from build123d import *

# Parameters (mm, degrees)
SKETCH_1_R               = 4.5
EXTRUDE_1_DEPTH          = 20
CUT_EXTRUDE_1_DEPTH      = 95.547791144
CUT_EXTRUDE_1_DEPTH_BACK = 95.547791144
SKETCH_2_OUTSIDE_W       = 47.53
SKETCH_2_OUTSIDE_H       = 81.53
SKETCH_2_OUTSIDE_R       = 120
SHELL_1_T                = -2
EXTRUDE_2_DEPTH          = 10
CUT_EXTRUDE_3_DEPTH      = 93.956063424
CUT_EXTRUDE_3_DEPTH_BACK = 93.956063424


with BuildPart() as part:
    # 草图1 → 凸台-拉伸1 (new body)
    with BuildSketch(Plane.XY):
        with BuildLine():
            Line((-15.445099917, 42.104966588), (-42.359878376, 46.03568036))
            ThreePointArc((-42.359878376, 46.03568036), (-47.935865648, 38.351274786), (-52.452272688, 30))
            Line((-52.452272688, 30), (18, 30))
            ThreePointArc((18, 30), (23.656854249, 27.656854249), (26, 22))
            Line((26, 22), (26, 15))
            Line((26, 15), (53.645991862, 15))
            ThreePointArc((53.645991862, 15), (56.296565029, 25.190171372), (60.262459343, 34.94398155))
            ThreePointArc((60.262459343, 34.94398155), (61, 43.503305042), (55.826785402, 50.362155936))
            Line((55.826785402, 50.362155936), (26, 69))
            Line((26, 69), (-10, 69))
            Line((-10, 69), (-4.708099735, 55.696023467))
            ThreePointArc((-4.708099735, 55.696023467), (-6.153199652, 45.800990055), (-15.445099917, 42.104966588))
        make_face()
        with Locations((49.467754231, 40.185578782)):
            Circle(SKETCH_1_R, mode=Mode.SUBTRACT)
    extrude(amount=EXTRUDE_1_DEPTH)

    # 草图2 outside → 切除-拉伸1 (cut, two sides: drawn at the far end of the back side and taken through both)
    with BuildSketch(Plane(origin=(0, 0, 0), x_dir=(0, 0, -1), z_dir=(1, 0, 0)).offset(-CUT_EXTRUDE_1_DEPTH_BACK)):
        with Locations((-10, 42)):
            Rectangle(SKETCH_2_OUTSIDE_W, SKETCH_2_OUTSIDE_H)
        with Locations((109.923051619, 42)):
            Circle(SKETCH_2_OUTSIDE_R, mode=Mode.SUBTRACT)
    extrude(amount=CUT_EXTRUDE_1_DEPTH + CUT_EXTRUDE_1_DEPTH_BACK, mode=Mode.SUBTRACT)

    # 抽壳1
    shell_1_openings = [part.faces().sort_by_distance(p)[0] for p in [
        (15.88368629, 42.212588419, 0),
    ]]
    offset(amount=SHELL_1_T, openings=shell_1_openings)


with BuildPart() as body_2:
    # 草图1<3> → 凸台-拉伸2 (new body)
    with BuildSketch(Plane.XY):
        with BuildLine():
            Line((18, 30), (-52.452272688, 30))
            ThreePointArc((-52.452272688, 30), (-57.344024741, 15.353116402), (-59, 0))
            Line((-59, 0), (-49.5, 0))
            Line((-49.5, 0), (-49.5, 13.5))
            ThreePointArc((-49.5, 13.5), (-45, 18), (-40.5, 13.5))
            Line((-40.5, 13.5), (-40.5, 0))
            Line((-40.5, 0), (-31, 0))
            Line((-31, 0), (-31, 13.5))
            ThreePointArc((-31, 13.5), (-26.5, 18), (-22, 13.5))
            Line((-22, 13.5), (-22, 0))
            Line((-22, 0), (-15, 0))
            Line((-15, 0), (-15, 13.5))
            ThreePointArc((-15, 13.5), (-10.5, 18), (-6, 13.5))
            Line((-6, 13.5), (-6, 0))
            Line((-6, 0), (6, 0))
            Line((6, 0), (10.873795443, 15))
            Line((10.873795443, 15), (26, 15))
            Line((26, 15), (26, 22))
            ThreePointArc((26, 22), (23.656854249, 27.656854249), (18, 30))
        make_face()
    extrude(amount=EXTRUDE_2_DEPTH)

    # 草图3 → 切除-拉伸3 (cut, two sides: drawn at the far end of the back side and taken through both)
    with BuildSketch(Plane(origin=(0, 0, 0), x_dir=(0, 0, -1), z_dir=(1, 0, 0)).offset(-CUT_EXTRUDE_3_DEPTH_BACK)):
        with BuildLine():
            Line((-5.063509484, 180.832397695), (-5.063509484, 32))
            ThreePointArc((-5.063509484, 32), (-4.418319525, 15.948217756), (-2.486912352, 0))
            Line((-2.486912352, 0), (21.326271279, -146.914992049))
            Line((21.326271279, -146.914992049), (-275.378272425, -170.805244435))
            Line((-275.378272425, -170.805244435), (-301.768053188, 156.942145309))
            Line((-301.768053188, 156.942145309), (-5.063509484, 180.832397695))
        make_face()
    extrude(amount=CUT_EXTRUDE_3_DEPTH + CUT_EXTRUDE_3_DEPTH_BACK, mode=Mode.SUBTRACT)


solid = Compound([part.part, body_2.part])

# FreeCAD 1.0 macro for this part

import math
import FreeCAD as App
import Part
import Sketcher
Q = App.Units.Quantity


def faces_at(feature, points):
    """Names of the faces that lie closest to the given points."""
    faces = feature.Shape.Faces
    near = lambda p: min(range(len(faces)), key=lambda i: faces[i].distToShape(Part.Vertex(*p))[0])
    return sorted({f"Face{near(p) + 1}" for p in points})

doc = App.newDocument("Part")
body = doc.addObject("PartDesign::Body", "Body")

# Sketch on XY plane
sketch1 = doc.addObject("Sketcher::SketchObject", "Sketch")
body.addObject(sketch1)
sketch1.AttachmentSupport = (doc.XY_Plane, [""])
sketch1.MapMode = "FlatFace"
sketch1.addGeometry(Part.LineSegment(App.Vector(-15.4, 42.1, 0), App.Vector(-42.4, 46, 0)), False)
sketch1.addGeometry(Part.ArcOfCircle(Part.Circle(App.Vector(13, 0, 0), App.Vector(0, 0, 1), 72), math.radians(140.25), math.radians(155.38)), False)
sketch1.addGeometry(Part.LineSegment(App.Vector(-52.5, 30, 0), App.Vector(18, 30, 0)), False)
sketch1.addGeometry(Part.ArcOfCircle(Part.Circle(App.Vector(18, 22, 0), App.Vector(0, 0, 1), 8), math.radians(0), math.radians(90)), False)
sketch1.addGeometry(Part.LineSegment(App.Vector(26, 22, 0), App.Vector(26, 15, 0)), False)
sketch1.addGeometry(Part.LineSegment(App.Vector(26, 15, 0), App.Vector(53.6, 15, 0)), False)
sketch1.addGeometry(Part.ArcOfCircle(Part.Circle(App.Vector(132.2, 0, 0), App.Vector(0, 0, 1), 80), math.radians(154.1), math.radians(169.19)), False)
sketch1.addGeometry(Part.ArcOfCircle(Part.Circle(App.Vector(49.5, 40.2, 0), App.Vector(0, 0, 1), 12), math.radians(-26), math.radians(58)), False)
sketch1.addGeometry(Part.LineSegment(App.Vector(55.8, 50.4, 0), App.Vector(26, 69, 0)), False)
sketch1.addGeometry(Part.LineSegment(App.Vector(26, 69, 0), App.Vector(-10, 69, 0)), False)
sketch1.addGeometry(Part.LineSegment(App.Vector(-10, 69, 0), App.Vector(-4.7, 55.7, 0)), False)
sketch1.addGeometry(Part.ArcOfCircle(Part.Circle(App.Vector(-14, 52, 0), App.Vector(0, 0, 1), 10), math.radians(-98), math.radians(22)), False)
sketch1.addGeometry(Part.Circle(App.Vector(49.5, 40.2, 0), App.Vector(0, 0, 1), 4.5), False)
sketch1.addConstraint(Sketcher.Constraint("Coincident", 0, 2, 1, 1))
sketch1.addConstraint(Sketcher.Constraint("Coincident", 1, 2, 2, 1))
sketch1.addConstraint(Sketcher.Constraint("Tangent", 2, 2, 3, 2))
sketch1.addConstraint(Sketcher.Constraint("Tangent", 3, 1, 4, 1))
sketch1.addConstraint(Sketcher.Constraint("Coincident", 4, 2, 5, 1))
sketch1.addConstraint(Sketcher.Constraint("Coincident", 5, 2, 6, 2))
sketch1.addConstraint(Sketcher.Constraint("Tangent", 6, 1, 7, 1))
sketch1.addConstraint(Sketcher.Constraint("Tangent", 7, 2, 8, 1))
sketch1.addConstraint(Sketcher.Constraint("Coincident", 8, 2, 9, 1))
sketch1.addConstraint(Sketcher.Constraint("Coincident", 9, 2, 10, 1))
sketch1.addConstraint(Sketcher.Constraint("Tangent", 10, 2, 11, 2))
sketch1.addConstraint(Sketcher.Constraint("Tangent", 11, 1, 0, 1))
sketch1.addConstraint(Sketcher.Constraint("Horizontal", 2))
sketch1.addConstraint(Sketcher.Constraint("Vertical", 4))
sketch1.addConstraint(Sketcher.Constraint("Horizontal", 5))
sketch1.addConstraint(Sketcher.Constraint("Horizontal", 9))
sketch1.addConstraint(Sketcher.Constraint("Coincident", 12, 3, 7, 3))
sketch1.addConstraint(Sketcher.Constraint("PointOnObject", 1, 3, -1))
sketch1.addConstraint(Sketcher.Constraint("PointOnObject", 6, 3, -1))
sketch1.addConstraint(Sketcher.Constraint("Vertical", 4, 2, 8, 2))
sketch1.addConstraint(Sketcher.Constraint("Diameter", 12, 9.0))
sketch1.addConstraint(Sketcher.Constraint("Radius", 1, 72.0))
sketch1.addConstraint(Sketcher.Constraint("Radius", 3, 8.0))
sketch1.addConstraint(Sketcher.Constraint("Radius", 6, 80.0))
sketch1.addConstraint(Sketcher.Constraint("Radius", 7, 12.0))
sketch1.addConstraint(Sketcher.Constraint("Radius", 11, 10.0))
sketch1.addConstraint(Sketcher.Constraint("DistanceX", 9, 2, 9, 1, 36.0))
sketch1.addConstraint(Sketcher.Constraint("DistanceY", 4, 2, 4, 1, 7.0))
sketch1.addConstraint(Sketcher.Constraint("Angle", 8, Q("148 deg")))
sketch1.addConstraint(Sketcher.Constraint("DistanceX", -1, 1, 1, 3, 13.0))
sketch1.addConstraint(Sketcher.Constraint("DistanceX", -1, 1, 3, 3, 18.0))
sketch1.addConstraint(Sketcher.Constraint("DistanceY", -1, 1, 3, 3, 22.0))
sketch1.addConstraint(Sketcher.Constraint("DistanceX", 11, 3, -1, 1, 14.0))
sketch1.addConstraint(Sketcher.Constraint("DistanceY", -1, 1, 11, 3, 52.0))
sketch1.addConstraint(Sketcher.Constraint("DistanceY", -1, 1, 8, 2, 69.0))
sketch1.addConstraint(Sketcher.Constraint("DistanceX", 11, 1, 10, 2, 10.737))
sketch1.addConstraint(Sketcher.Constraint("Distance", 8, 35.171101))
pad1 = doc.addObject("PartDesign::Pad", "Pad")
body.addObject(pad1)
pad1.Profile = sketch1
pad1.Length = 20

# Sketch on YZ plane
sketch2 = doc.addObject("Sketcher::SketchObject", "Sketch001")
body.addObject(sketch2)
sketch2.AttachmentSupport = (doc.YZ_Plane, [""])
sketch2.MapMode = "FlatFace"
sketch2.addGeometry(Part.LineSegment(App.Vector(83, 34, 0), App.Vector(1, 34, 0)), False)
sketch2.addGeometry(Part.LineSegment(App.Vector(1, 34, 0), App.Vector(1, 3, 0)), False)
sketch2.addGeometry(Part.ArcOfCircle(Part.Circle(App.Vector(42, -110, 0), App.Vector(0, 0, 1), 120), math.radians(70), math.radians(110)), False)
sketch2.addGeometry(Part.LineSegment(App.Vector(83, 3, 0), App.Vector(83, 34, 0)), False)
sketch2.addConstraint(Sketcher.Constraint("Coincident", 0, 2, 1, 1))
sketch2.addConstraint(Sketcher.Constraint("Coincident", 1, 2, 2, 2))
sketch2.addConstraint(Sketcher.Constraint("Coincident", 2, 1, 3, 1))
sketch2.addConstraint(Sketcher.Constraint("Coincident", 3, 2, 0, 1))
sketch2.addConstraint(Sketcher.Constraint("Horizontal", 0))
sketch2.addConstraint(Sketcher.Constraint("Vertical", 1))
sketch2.addConstraint(Sketcher.Constraint("Vertical", 3))
sketch2.addConstraint(Sketcher.Constraint("Horizontal", 1, 2, 2, 1))
sketch2.addConstraint(Sketcher.Constraint("Radius", 2, 120.0))
sketch2.addConstraint(Sketcher.Constraint("DistanceX", -1, 1, 2, 3, 42.0))
sketch2.addConstraint(Sketcher.Constraint("DistanceX", 0, 2, 0, 1, 81.53))
sketch2.addConstraint(Sketcher.Constraint("DistanceY", -1, 1, 0, 2, 33.765))
sketch2.addConstraint(Sketcher.Constraint("DistanceY", 1, 2, 1, 1, 30.824352))
pocket1 = doc.addObject("PartDesign::Pocket", "Pocket")
body.addObject(pocket1)
pocket1.Profile = sketch2
pocket1.Type = "ThroughAll"
pocket1.Midplane = True
doc.recompute()

thickness = doc.addObject("PartDesign::Thickness", "Thickness")
body.addObject(thickness)
thickness.Base = (pocket1, faces_at(pocket1, [(4.508, 42, 0)]))
thickness.Value = 2
thickness.Reversed = True
thickness.Join = "Arc"
body2 = doc.addObject("PartDesign::Body", "Body001")

# Sketch on XY plane
sketch3 = doc.addObject("Sketcher::SketchObject", "Sketch002")
body2.addObject(sketch3)
sketch3.AttachmentSupport = (doc.getObject("XY_Plane001"), [""])
sketch3.MapMode = "FlatFace"
sketch3.addGeometry(Part.LineSegment(App.Vector(18, 30, 0), App.Vector(-52.5, 30, 0)), False)
sketch3.addGeometry(Part.ArcOfCircle(Part.Circle(App.Vector(13, 0, 0), App.Vector(0, 0, 1), 72), math.radians(155), math.radians(180)), False)
sketch3.addGeometry(Part.LineSegment(App.Vector(-59, 0, 0), App.Vector(-49.5, 0, 0)), False)
sketch3.addGeometry(Part.LineSegment(App.Vector(-49.5, 0, 0), App.Vector(-49.5, 13.5, 0)), False)
sketch3.addGeometry(Part.ArcOfCircle(Part.Circle(App.Vector(-45, 13.5, 0), App.Vector(0, 0, 1), 4.5), math.radians(0), math.radians(180)), False)
sketch3.addGeometry(Part.LineSegment(App.Vector(-40.5, 13.5, 0), App.Vector(-40.5, 0, 0)), False)
sketch3.addGeometry(Part.LineSegment(App.Vector(-40.5, 0, 0), App.Vector(-31, 0, 0)), False)
sketch3.addGeometry(Part.LineSegment(App.Vector(-31, 0, 0), App.Vector(-31, 13.5, 0)), False)
sketch3.addGeometry(Part.ArcOfCircle(Part.Circle(App.Vector(-26.5, 13.5, 0), App.Vector(0, 0, 1), 4.5), math.radians(0), math.radians(180)), False)
sketch3.addGeometry(Part.LineSegment(App.Vector(-22, 13.5, 0), App.Vector(-22, 0, 0)), False)
sketch3.addGeometry(Part.LineSegment(App.Vector(-22, 0, 0), App.Vector(-15, 0, 0)), False)
sketch3.addGeometry(Part.LineSegment(App.Vector(-15, 0, 0), App.Vector(-15, 13.5, 0)), False)
sketch3.addGeometry(Part.ArcOfCircle(Part.Circle(App.Vector(-10.5, 13.5, 0), App.Vector(0, 0, 1), 4.5), math.radians(0), math.radians(180)), False)
sketch3.addGeometry(Part.LineSegment(App.Vector(-6, 13.5, 0), App.Vector(-6, 0, 0)), False)
sketch3.addGeometry(Part.LineSegment(App.Vector(-6, 0, 0), App.Vector(6, 0, 0)), False)
sketch3.addGeometry(Part.LineSegment(App.Vector(6, 0, 0), App.Vector(10.9, 15, 0)), False)
sketch3.addGeometry(Part.LineSegment(App.Vector(10.9, 15, 0), App.Vector(26, 15, 0)), False)
sketch3.addGeometry(Part.LineSegment(App.Vector(26, 15, 0), App.Vector(26, 22, 0)), False)
sketch3.addGeometry(Part.ArcOfCircle(Part.Circle(App.Vector(18, 22, 0), App.Vector(0, 0, 1), 8), math.radians(0), math.radians(90)), False)
sketch3.addConstraint(Sketcher.Constraint("Coincident", 0, 2, 1, 1))
sketch3.addConstraint(Sketcher.Constraint("Coincident", 1, 2, 2, 1))
sketch3.addConstraint(Sketcher.Constraint("Coincident", 2, 2, 3, 1))
sketch3.addConstraint(Sketcher.Constraint("Tangent", 3, 2, 4, 2))
sketch3.addConstraint(Sketcher.Constraint("Tangent", 4, 1, 5, 1))
sketch3.addConstraint(Sketcher.Constraint("Coincident", 5, 2, 6, 1))
sketch3.addConstraint(Sketcher.Constraint("Coincident", 6, 2, 7, 1))
sketch3.addConstraint(Sketcher.Constraint("Tangent", 7, 2, 8, 2))
sketch3.addConstraint(Sketcher.Constraint("Tangent", 8, 1, 9, 1))
sketch3.addConstraint(Sketcher.Constraint("Coincident", 9, 2, 10, 1))
sketch3.addConstraint(Sketcher.Constraint("Coincident", 10, 2, 11, 1))
sketch3.addConstraint(Sketcher.Constraint("Tangent", 11, 2, 12, 2))
sketch3.addConstraint(Sketcher.Constraint("Tangent", 12, 1, 13, 1))
sketch3.addConstraint(Sketcher.Constraint("Coincident", 13, 2, 14, 1))
sketch3.addConstraint(Sketcher.Constraint("Coincident", 14, 2, 15, 1))
sketch3.addConstraint(Sketcher.Constraint("Coincident", 15, 2, 16, 1))
sketch3.addConstraint(Sketcher.Constraint("Coincident", 16, 2, 17, 1))
sketch3.addConstraint(Sketcher.Constraint("Tangent", 17, 2, 18, 1))
sketch3.addConstraint(Sketcher.Constraint("Tangent", 18, 2, 0, 1))
sketch3.addConstraint(Sketcher.Constraint("Horizontal", 0))
sketch3.addConstraint(Sketcher.Constraint("Horizontal", 2))
sketch3.addConstraint(Sketcher.Constraint("Vertical", 3))
sketch3.addConstraint(Sketcher.Constraint("Vertical", 5))
sketch3.addConstraint(Sketcher.Constraint("Horizontal", 6))
sketch3.addConstraint(Sketcher.Constraint("Vertical", 7))
sketch3.addConstraint(Sketcher.Constraint("Vertical", 9))
sketch3.addConstraint(Sketcher.Constraint("Horizontal", 10))
sketch3.addConstraint(Sketcher.Constraint("Vertical", 11))
sketch3.addConstraint(Sketcher.Constraint("Vertical", 13))
sketch3.addConstraint(Sketcher.Constraint("Horizontal", 14))
sketch3.addConstraint(Sketcher.Constraint("Horizontal", 16))
sketch3.addConstraint(Sketcher.Constraint("Vertical", 17))
sketch3.addConstraint(Sketcher.Constraint("Equal", 4, 8))
sketch3.addConstraint(Sketcher.Constraint("Equal", 8, 12))
sketch3.addConstraint(Sketcher.Constraint("Symmetric", 13, 2, 14, 2, -1, 1))
sketch3.addConstraint(Sketcher.Constraint("PointOnObject", 1, 3, -1))
sketch3.addConstraint(Sketcher.Constraint("PointOnObject", 1, 2, -1))
sketch3.addConstraint(Sketcher.Constraint("PointOnObject", 5, 2, -1))
sketch3.addConstraint(Sketcher.Constraint("PointOnObject", 9, 2, -1))
sketch3.addConstraint(Sketcher.Constraint("Horizontal", 4, 3, 8, 3))
sketch3.addConstraint(Sketcher.Constraint("Horizontal", 8, 3, 12, 3))
sketch3.addConstraint(Sketcher.Constraint("Equal", 2, 6))
sketch3.addConstraint(Sketcher.Constraint("Equal", 10, 17))
sketch3.addConstraint(Sketcher.Constraint("Radius", 1, 72.0))
sketch3.addConstraint(Sketcher.Constraint("Radius", 18, 8.0))
sketch3.addConstraint(Sketcher.Constraint("Radius", 4, 4.5))
sketch3.addConstraint(Sketcher.Constraint("DistanceX", 10, 1, 10, 2, 7.0))
sketch3.addConstraint(Sketcher.Constraint("DistanceX", 14, 1, 14, 2, 12.0))
sketch3.addConstraint(Sketcher.Constraint("Angle", 15, Q("72 deg")))
sketch3.addConstraint(Sketcher.Constraint("DistanceX", 2, 1, 2, 2, 9.5))
sketch3.addConstraint(Sketcher.Constraint("DistanceY", 3, 1, 3, 2, 13.5))
sketch3.addConstraint(Sketcher.Constraint("DistanceX", -1, 1, 18, 3, 18.0))
sketch3.addConstraint(Sketcher.Constraint("DistanceY", -1, 1, 18, 3, 22.0))
pad2 = doc.addObject("PartDesign::Pad", "Pad001")
body2.addObject(pad2)
pad2.Profile = sketch3
pad2.Length = 10

# Sketch on YZ plane
sketch4 = doc.addObject("Sketcher::SketchObject", "Sketch003")
body2.addObject(sketch4)
sketch4.AttachmentSupport = (doc.getObject("YZ_Plane001"), [""])
sketch4.MapMode = "FlatFace"
sketch4.addGeometry(Part.LineSegment(App.Vector(32, 5, 0), App.Vector(181, 5, 0)), False)
sketch4.addGeometry(Part.LineSegment(App.Vector(181, 5, 0), App.Vector(157, 302, 0)), False)
sketch4.addGeometry(Part.LineSegment(App.Vector(157, 302, 0), App.Vector(-171, 275, 0)), False)
sketch4.addGeometry(Part.LineSegment(App.Vector(-171, 275, 0), App.Vector(-147, -21, 0)), False)
sketch4.addGeometry(Part.LineSegment(App.Vector(-147, -21, 0), App.Vector(0, 2, 0)), False)
sketch4.addGeometry(Part.ArcOfCircle(Part.Circle(App.Vector(32, -195, 0), App.Vector(0, 0, 1), 200), math.radians(90), math.radians(99.21)), False)
sketch4.addConstraint(Sketcher.Constraint("Coincident", 0, 2, 1, 1))
sketch4.addConstraint(Sketcher.Constraint("Coincident", 1, 2, 2, 1))
sketch4.addConstraint(Sketcher.Constraint("Coincident", 2, 2, 3, 1))
sketch4.addConstraint(Sketcher.Constraint("Coincident", 3, 2, 4, 1))
sketch4.addConstraint(Sketcher.Constraint("Tangent", 4, 2, 5, 2))
sketch4.addConstraint(Sketcher.Constraint("Tangent", 5, 1, 0, 1))
sketch4.addConstraint(Sketcher.Constraint("Horizontal", 0))
sketch4.addConstraint(Sketcher.Constraint("PointOnObject", 4, 2, -2))
sketch4.addConstraint(Sketcher.Constraint("Perpendicular", 1, 2))
sketch4.addConstraint(Sketcher.Constraint("Perpendicular", 2, 3))
sketch4.addConstraint(Sketcher.Constraint("Equal", 1, 3))
sketch4.addConstraint(Sketcher.Constraint("Radius", 5, 200.0))
sketch4.addConstraint(Sketcher.Constraint("DistanceX", -1, 1, 5, 3, 32.0))
sketch4.addConstraint(Sketcher.Constraint("Distance", 2, 328.808108))
sketch4.addConstraint(Sketcher.Constraint("DistanceX", 0, 1, 0, 2, 148.832398))
sketch4.addConstraint(Sketcher.Constraint("DistanceY", 5, 3, -1, 1, 194.936491))
sketch4.addConstraint(Sketcher.Constraint("DistanceY", 4, 2, 2, 2, 272.89136))
pocket2 = doc.addObject("PartDesign::Pocket", "Pocket001")
body2.addObject(pocket2)
pocket2.Profile = sketch4
pocket2.Type = "ThroughAll"
pocket2.Midplane = True

doc.recompute()
